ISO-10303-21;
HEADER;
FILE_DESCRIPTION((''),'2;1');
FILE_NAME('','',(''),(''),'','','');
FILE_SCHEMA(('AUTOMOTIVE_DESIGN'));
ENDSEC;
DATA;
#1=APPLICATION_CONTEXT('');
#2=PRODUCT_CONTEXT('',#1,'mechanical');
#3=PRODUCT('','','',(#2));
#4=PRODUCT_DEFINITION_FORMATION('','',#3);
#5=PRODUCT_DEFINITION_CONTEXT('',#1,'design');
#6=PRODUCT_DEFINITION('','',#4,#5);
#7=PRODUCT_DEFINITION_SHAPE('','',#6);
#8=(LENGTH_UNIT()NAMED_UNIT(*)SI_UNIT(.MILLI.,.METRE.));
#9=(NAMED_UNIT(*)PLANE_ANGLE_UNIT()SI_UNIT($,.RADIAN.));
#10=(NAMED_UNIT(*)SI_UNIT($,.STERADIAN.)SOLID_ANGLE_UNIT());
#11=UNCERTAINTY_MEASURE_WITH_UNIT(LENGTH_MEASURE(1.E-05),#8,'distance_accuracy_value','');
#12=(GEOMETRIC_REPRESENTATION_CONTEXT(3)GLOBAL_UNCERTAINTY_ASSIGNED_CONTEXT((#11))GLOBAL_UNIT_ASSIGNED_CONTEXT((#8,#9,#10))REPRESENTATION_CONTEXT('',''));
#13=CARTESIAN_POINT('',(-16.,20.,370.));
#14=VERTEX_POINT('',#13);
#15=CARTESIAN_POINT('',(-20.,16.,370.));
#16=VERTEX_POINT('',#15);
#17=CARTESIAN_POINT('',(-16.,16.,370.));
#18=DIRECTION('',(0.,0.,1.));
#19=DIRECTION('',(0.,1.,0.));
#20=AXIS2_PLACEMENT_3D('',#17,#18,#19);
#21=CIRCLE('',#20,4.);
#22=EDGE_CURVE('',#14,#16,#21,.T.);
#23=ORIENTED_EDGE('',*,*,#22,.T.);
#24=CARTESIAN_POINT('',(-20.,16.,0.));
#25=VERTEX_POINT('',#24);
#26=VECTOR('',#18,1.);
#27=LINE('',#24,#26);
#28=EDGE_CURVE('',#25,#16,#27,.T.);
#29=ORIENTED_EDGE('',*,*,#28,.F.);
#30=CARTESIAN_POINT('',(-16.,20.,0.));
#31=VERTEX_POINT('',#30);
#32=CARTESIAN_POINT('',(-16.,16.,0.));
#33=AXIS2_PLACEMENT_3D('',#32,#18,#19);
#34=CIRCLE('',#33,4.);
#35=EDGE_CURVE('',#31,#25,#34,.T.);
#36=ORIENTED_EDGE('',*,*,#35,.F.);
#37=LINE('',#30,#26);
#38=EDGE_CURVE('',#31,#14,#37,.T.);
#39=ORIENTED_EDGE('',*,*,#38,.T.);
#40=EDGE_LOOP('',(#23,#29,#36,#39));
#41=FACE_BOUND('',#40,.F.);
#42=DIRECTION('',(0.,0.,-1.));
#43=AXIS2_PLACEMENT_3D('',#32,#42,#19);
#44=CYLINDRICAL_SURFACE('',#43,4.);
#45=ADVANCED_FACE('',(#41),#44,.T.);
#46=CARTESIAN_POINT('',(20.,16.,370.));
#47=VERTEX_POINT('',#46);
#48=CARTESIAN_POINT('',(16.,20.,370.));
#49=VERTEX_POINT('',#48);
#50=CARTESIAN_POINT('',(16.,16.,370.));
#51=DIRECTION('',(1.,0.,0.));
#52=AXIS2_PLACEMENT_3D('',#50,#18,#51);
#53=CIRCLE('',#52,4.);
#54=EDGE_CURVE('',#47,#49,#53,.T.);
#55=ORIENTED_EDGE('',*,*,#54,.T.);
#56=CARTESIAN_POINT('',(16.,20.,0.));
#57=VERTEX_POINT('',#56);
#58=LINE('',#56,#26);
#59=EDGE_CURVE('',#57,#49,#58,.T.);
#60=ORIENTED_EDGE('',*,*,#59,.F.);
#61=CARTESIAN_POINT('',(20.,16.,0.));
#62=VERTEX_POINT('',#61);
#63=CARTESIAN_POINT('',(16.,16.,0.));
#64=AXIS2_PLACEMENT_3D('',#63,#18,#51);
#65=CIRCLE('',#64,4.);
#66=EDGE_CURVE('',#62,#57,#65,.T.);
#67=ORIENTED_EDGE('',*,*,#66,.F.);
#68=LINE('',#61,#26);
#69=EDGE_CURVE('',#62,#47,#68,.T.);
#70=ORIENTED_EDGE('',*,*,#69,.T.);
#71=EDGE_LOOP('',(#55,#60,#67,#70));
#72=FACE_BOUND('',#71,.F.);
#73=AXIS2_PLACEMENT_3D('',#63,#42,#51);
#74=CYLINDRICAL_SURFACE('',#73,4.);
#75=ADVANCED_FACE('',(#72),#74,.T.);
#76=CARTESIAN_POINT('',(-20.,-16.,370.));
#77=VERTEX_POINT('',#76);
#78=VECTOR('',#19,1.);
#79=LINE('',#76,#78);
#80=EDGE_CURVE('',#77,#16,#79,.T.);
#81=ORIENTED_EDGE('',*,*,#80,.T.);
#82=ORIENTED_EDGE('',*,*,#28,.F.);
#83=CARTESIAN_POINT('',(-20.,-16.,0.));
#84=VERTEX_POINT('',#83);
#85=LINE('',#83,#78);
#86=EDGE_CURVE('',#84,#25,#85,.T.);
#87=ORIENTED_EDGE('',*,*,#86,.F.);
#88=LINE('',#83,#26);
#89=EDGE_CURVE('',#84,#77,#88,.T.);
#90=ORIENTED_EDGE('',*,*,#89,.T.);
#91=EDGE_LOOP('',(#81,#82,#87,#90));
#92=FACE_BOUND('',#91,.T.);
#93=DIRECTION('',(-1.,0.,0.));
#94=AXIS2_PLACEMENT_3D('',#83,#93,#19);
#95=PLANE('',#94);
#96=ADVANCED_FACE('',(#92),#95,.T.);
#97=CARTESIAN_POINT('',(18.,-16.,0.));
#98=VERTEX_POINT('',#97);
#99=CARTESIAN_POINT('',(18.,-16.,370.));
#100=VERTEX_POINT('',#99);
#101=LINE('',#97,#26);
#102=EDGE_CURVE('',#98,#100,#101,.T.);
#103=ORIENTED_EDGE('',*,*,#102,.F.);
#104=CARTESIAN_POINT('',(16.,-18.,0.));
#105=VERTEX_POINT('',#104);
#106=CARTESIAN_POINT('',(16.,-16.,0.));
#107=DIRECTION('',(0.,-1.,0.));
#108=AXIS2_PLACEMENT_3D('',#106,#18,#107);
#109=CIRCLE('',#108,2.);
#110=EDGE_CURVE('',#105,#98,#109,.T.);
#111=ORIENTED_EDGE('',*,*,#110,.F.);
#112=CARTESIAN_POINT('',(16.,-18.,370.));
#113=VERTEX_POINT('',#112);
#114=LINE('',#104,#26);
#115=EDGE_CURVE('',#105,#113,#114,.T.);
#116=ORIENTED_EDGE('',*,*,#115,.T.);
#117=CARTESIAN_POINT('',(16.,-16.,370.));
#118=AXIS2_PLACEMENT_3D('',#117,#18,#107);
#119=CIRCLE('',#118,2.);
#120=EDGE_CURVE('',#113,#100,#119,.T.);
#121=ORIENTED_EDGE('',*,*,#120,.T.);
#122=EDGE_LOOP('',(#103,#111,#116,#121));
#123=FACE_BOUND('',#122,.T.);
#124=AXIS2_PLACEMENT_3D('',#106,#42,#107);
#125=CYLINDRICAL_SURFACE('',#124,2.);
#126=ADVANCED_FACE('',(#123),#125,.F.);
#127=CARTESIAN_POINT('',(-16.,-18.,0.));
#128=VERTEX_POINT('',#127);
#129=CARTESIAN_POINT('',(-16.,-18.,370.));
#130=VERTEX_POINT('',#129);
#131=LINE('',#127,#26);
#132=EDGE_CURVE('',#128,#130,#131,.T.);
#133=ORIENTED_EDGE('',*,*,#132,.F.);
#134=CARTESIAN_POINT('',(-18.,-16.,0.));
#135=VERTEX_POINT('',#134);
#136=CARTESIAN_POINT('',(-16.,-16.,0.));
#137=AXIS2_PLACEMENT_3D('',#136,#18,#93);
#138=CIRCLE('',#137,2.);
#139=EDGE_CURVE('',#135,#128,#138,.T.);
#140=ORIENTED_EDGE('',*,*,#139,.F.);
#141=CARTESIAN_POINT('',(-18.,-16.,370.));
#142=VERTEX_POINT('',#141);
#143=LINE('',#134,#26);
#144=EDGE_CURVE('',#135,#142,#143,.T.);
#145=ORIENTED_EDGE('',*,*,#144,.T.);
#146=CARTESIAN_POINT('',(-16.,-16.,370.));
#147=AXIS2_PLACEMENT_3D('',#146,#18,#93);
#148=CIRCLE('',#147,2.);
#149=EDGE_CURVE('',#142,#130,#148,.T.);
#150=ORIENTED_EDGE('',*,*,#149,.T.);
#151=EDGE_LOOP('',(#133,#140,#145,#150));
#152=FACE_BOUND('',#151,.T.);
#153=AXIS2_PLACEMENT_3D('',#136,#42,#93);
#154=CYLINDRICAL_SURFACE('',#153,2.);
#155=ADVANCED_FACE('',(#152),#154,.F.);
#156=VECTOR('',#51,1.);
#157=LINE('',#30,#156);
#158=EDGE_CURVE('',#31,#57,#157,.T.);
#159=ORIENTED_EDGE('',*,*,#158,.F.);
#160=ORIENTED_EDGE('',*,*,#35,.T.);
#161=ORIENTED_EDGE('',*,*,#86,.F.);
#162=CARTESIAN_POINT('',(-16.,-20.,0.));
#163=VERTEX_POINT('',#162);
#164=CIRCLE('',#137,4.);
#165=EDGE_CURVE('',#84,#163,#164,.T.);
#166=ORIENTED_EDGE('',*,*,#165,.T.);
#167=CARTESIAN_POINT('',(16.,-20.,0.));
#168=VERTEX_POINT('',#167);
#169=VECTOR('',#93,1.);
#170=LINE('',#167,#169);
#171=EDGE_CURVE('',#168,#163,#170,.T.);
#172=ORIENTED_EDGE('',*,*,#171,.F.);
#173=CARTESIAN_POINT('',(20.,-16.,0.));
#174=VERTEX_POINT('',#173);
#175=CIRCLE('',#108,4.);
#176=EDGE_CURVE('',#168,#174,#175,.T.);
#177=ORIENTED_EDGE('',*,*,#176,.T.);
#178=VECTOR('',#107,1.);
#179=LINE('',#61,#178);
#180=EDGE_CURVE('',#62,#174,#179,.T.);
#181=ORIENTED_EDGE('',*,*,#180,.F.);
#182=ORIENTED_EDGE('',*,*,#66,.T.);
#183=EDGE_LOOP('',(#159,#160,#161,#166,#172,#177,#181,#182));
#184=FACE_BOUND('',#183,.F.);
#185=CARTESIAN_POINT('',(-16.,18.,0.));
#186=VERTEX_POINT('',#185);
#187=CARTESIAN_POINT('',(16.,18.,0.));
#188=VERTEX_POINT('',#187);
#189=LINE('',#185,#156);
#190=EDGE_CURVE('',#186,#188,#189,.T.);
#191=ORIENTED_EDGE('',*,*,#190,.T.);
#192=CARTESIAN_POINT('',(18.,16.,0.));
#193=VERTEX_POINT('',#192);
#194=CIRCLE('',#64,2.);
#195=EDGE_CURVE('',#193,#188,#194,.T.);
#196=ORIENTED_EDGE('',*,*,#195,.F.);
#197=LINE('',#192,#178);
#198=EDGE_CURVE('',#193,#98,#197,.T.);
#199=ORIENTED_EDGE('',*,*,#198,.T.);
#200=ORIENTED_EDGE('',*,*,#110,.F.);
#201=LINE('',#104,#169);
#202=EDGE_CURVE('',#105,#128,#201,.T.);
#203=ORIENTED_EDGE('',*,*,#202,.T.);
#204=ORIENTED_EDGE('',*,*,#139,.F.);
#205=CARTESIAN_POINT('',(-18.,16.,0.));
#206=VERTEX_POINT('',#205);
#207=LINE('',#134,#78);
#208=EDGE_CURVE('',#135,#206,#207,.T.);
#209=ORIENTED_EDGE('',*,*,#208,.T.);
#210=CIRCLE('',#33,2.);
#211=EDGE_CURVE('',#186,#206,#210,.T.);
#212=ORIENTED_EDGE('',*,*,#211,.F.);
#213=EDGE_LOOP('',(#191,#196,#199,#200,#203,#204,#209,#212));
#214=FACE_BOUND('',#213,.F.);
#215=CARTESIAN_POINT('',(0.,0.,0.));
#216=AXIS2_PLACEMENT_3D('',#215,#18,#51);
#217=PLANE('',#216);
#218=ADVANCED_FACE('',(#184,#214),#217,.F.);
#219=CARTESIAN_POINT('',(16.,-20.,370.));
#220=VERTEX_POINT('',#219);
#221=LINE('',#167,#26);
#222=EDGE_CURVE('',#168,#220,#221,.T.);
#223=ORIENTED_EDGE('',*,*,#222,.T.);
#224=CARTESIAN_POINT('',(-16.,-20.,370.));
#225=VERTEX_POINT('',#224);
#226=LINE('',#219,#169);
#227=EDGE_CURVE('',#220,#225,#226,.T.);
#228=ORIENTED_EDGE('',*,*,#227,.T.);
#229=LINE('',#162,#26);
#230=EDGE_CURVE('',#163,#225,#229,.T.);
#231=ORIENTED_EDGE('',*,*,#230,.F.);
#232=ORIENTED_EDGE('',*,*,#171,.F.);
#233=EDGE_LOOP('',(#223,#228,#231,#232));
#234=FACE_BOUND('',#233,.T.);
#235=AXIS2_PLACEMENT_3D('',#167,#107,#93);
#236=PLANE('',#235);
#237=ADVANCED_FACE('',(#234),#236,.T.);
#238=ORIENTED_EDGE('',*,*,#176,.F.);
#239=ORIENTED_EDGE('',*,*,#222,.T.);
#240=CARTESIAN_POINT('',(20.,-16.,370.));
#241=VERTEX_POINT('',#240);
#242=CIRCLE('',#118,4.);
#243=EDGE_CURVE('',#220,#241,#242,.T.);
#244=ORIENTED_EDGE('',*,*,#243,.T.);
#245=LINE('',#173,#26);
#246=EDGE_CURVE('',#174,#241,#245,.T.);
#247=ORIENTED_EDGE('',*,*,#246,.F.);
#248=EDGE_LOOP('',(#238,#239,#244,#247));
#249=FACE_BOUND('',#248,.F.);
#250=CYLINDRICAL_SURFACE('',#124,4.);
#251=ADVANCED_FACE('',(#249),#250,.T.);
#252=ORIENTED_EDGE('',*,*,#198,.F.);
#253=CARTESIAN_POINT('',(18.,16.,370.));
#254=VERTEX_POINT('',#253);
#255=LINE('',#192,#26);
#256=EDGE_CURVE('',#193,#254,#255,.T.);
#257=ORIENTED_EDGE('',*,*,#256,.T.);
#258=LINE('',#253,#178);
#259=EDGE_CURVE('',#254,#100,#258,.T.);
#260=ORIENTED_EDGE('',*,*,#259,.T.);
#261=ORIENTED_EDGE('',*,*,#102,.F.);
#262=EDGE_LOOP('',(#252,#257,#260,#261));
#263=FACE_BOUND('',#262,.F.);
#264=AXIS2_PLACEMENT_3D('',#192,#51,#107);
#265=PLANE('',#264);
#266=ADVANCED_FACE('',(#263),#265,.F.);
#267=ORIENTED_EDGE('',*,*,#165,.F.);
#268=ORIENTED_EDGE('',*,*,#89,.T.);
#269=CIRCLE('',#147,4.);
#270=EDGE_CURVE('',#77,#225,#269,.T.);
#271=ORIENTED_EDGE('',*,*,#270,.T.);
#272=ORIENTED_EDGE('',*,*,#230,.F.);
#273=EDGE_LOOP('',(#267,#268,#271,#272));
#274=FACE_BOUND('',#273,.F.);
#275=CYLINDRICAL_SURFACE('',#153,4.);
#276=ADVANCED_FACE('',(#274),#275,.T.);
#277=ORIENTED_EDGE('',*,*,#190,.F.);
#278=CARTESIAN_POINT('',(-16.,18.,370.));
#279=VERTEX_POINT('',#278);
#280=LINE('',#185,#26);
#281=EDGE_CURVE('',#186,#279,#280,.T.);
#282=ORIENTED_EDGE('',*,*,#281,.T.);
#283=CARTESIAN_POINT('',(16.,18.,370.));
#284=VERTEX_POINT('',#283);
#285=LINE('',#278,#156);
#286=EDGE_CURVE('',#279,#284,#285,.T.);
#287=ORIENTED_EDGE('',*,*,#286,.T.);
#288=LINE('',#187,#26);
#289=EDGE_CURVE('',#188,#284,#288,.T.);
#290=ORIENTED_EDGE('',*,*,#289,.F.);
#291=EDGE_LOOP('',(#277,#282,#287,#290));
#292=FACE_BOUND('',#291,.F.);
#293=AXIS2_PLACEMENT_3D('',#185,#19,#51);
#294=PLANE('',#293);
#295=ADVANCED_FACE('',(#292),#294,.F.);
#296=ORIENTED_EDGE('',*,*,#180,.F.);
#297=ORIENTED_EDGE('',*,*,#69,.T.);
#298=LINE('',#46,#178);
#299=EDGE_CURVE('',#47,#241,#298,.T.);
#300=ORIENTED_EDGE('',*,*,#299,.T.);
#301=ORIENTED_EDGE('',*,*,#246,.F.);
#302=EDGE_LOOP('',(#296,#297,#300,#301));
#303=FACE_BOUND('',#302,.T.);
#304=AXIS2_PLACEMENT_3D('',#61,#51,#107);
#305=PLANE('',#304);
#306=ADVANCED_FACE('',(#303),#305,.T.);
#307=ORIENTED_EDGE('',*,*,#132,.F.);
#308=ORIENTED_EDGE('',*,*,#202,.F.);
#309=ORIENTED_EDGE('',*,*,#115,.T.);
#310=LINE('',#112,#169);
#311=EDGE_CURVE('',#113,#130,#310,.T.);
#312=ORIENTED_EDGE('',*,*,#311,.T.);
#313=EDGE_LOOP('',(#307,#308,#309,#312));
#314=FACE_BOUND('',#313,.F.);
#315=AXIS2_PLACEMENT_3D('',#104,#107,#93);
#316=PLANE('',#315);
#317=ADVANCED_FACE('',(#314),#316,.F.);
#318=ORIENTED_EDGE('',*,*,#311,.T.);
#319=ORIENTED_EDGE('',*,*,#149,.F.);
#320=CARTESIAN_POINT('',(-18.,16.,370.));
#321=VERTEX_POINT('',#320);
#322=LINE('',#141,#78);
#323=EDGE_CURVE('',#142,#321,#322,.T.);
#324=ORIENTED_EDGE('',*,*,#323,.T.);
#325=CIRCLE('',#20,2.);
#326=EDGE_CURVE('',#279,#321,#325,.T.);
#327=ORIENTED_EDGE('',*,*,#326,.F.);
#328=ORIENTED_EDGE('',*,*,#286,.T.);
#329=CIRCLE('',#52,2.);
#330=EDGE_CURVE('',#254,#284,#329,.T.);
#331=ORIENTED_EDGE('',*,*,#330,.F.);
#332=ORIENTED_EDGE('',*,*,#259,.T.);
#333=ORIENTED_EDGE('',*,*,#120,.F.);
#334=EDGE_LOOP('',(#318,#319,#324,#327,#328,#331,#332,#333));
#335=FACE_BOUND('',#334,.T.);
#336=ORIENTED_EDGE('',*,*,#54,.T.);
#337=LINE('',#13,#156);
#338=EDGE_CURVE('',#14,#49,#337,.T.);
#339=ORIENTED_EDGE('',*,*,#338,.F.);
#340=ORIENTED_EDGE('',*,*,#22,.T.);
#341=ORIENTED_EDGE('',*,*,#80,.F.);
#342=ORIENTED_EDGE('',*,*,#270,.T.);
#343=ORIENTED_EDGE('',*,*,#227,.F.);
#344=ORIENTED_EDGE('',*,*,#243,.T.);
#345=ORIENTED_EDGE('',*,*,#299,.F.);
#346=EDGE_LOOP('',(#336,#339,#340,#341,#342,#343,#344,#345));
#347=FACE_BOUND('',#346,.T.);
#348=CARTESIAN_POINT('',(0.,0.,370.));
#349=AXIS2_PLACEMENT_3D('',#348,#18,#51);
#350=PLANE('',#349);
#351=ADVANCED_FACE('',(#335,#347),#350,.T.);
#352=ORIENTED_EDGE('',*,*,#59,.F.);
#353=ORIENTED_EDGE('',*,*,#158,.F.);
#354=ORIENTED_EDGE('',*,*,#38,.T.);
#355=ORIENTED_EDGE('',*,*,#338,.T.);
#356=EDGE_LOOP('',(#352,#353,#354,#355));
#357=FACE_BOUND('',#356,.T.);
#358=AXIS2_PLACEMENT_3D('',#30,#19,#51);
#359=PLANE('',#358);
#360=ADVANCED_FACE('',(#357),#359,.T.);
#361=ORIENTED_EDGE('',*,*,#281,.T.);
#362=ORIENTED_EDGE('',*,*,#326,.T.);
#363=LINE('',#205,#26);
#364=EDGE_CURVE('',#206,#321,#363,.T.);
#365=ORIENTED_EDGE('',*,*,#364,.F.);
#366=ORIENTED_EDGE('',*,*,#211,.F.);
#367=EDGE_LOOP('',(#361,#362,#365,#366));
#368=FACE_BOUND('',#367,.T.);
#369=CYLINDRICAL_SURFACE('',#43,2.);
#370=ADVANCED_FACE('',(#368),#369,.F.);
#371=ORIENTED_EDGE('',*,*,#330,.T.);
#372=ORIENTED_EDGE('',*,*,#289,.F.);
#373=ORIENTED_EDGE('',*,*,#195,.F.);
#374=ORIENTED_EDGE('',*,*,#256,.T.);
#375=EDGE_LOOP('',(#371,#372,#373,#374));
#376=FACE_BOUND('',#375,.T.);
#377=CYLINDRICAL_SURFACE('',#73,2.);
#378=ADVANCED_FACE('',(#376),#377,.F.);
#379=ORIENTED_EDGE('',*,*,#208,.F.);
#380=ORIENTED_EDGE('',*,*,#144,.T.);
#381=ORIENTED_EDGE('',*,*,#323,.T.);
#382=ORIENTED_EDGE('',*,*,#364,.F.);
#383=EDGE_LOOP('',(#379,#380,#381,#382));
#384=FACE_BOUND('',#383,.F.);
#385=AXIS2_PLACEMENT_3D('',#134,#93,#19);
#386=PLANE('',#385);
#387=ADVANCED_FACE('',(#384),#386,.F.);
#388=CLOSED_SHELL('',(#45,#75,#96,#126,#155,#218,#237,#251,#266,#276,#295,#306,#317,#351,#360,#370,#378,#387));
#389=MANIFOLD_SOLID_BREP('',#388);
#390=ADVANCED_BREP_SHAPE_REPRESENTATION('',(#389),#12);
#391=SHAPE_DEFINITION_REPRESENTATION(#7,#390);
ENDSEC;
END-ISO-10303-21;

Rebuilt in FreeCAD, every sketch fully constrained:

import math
import FreeCAD as App
import Part
import Sketcher
from FreeCAD import Vector

doc = App.newDocument("Part")
body = doc.addObject("PartDesign::Body", "Body")

# Sketch on XY plane
sketch1 = body.newObject("Sketcher::SketchObject", "Sketch")
sketch1.AttachmentSupport = (doc.getObject("XY_Plane"), [""])
sketch1.MapMode = "FlatFace"
sketch1.addGeometry(Part.LineSegment(Vector(-20, 16, 0), Vector(-20, -16, 0)), False)
sketch1.addGeometry(Part.ArcOfCircle(Part.Circle(Vector(-16, -16, 0), Vector(0, 0, 1), 4), math.radians(180), math.radians(270)), False)
sketch1.addGeometry(Part.LineSegment(Vector(-16, -20, 0), Vector(16, -20, 0)), False)
sketch1.addGeometry(Part.ArcOfCircle(Part.Circle(Vector(16, -16, 0), Vector(0, 0, 1), 4), math.radians(-90), math.radians(0)), False)
sketch1.addGeometry(Part.LineSegment(Vector(20, -16, 0), Vector(20, 16, 0)), False)
sketch1.addGeometry(Part.ArcOfCircle(Part.Circle(Vector(16, 16, 0), Vector(0, 0, 1), 4), math.radians(0), math.radians(90)), False)
sketch1.addGeometry(Part.LineSegment(Vector(16, 20, 0), Vector(-16, 20, 0)), False)
sketch1.addGeometry(Part.ArcOfCircle(Part.Circle(Vector(-16, 16, 0), Vector(0, 0, 1), 4), math.radians(90), math.radians(180)), False)
sketch1.addGeometry(Part.ArcOfCircle(Part.Circle(Vector(-16, 16, 0), Vector(0, 0, 1), 2), math.radians(90), math.radians(180)), False)
sketch1.addGeometry(Part.LineSegment(Vector(-16, 18, 0), Vector(16, 18, 0)), False)
sketch1.addGeometry(Part.ArcOfCircle(Part.Circle(Vector(16, 16, 0), Vector(0, 0, 1), 2), math.radians(0), math.radians(90)), False)
sketch1.addGeometry(Part.LineSegment(Vector(18, 16, 0), Vector(18, -16, 0)), False)
sketch1.addGeometry(Part.ArcOfCircle(Part.Circle(Vector(16, -16, 0), Vector(0, 0, 1), 2), math.radians(-90), math.radians(0)), False)
sketch1.addGeometry(Part.LineSegment(Vector(16, -18, 0), Vector(-16, -18, 0)), False)
sketch1.addGeometry(Part.ArcOfCircle(Part.Circle(Vector(-16, -16, 0), Vector(0, 0, 1), 2), math.radians(180), math.radians(270)), False)
sketch1.addGeometry(Part.LineSegment(Vector(-18, -16, 0), Vector(-18, 16, 0)), False)
sketch1.addConstraint(Sketcher.Constraint("Tangent", 0, 2, 1, 1))
sketch1.addConstraint(Sketcher.Constraint("Tangent", 1, 2, 2, 1))
sketch1.addConstraint(Sketcher.Constraint("Tangent", 2, 2, 3, 1))
sketch1.addConstraint(Sketcher.Constraint("Tangent", 3, 2, 4, 1))
sketch1.addConstraint(Sketcher.Constraint("Tangent", 4, 2, 5, 1))
sketch1.addConstraint(Sketcher.Constraint("Tangent", 5, 2, 6, 1))
sketch1.addConstraint(Sketcher.Constraint("Tangent", 6, 2, 7, 1))
sketch1.addConstraint(Sketcher.Constraint("Tangent", 7, 2, 0, 1))
sketch1.addConstraint(Sketcher.Constraint("Tangent", 8, 1, 9, 1))
sketch1.addConstraint(Sketcher.Constraint("Tangent", 9, 2, 10, 2))
sketch1.addConstraint(Sketcher.Constraint("Tangent", 10, 1, 11, 1))
sketch1.addConstraint(Sketcher.Constraint("Tangent", 11, 2, 12, 2))
sketch1.addConstraint(Sketcher.Constraint("Tangent", 12, 1, 13, 1))
sketch1.addConstraint(Sketcher.Constraint("Tangent", 13, 2, 14, 2))
sketch1.addConstraint(Sketcher.Constraint("Tangent", 14, 1, 15, 1))
sketch1.addConstraint(Sketcher.Constraint("Tangent", 15, 2, 8, 2))
sketch1.addConstraint(Sketcher.Constraint("Vertical", 0))
sketch1.addConstraint(Sketcher.Constraint("Horizontal", 2))
sketch1.addConstraint(Sketcher.Constraint("Vertical", 4))
sketch1.addConstraint(Sketcher.Constraint("Horizontal", 6))
sketch1.addConstraint(Sketcher.Constraint("Horizontal", 9))
sketch1.addConstraint(Sketcher.Constraint("Vertical", 11))
sketch1.addConstraint(Sketcher.Constraint("Horizontal", 13))
sketch1.addConstraint(Sketcher.Constraint("Vertical", 15))
sketch1.addConstraint(Sketcher.Constraint("Coincident", 8, 3, 7, 3))
sketch1.addConstraint(Sketcher.Constraint("Coincident", 10, 3, 5, 3))
sketch1.addConstraint(Sketcher.Constraint("Coincident", 12, 3, 3, 3))
sketch1.addConstraint(Sketcher.Constraint("Equal", 1, 3))
sketch1.addConstraint(Sketcher.Constraint("Equal", 3, 5))
sketch1.addConstraint(Sketcher.Constraint("Equal", 5, 7))
sketch1.addConstraint(Sketcher.Constraint("Equal", 12, 14))
sketch1.addConstraint(Sketcher.Constraint("Symmetric", 1, 3, 5, 3, -1, 1))
sketch1.addConstraint(Sketcher.Constraint("Equal", 13, 0))
sketch1.addConstraint(Sketcher.Constraint("Radius", 1, 4.0))
sketch1.addConstraint(Sketcher.Constraint("Radius", 8, 2.0))
sketch1.addConstraint(Sketcher.Constraint("DistanceX", 0, 2, -1, 1, 20.0))
pad1 = body.newObject("PartDesign::Pad", "Pad")
pad1.Profile = sketch1
pad1.Length = 370

doc.recompute()
